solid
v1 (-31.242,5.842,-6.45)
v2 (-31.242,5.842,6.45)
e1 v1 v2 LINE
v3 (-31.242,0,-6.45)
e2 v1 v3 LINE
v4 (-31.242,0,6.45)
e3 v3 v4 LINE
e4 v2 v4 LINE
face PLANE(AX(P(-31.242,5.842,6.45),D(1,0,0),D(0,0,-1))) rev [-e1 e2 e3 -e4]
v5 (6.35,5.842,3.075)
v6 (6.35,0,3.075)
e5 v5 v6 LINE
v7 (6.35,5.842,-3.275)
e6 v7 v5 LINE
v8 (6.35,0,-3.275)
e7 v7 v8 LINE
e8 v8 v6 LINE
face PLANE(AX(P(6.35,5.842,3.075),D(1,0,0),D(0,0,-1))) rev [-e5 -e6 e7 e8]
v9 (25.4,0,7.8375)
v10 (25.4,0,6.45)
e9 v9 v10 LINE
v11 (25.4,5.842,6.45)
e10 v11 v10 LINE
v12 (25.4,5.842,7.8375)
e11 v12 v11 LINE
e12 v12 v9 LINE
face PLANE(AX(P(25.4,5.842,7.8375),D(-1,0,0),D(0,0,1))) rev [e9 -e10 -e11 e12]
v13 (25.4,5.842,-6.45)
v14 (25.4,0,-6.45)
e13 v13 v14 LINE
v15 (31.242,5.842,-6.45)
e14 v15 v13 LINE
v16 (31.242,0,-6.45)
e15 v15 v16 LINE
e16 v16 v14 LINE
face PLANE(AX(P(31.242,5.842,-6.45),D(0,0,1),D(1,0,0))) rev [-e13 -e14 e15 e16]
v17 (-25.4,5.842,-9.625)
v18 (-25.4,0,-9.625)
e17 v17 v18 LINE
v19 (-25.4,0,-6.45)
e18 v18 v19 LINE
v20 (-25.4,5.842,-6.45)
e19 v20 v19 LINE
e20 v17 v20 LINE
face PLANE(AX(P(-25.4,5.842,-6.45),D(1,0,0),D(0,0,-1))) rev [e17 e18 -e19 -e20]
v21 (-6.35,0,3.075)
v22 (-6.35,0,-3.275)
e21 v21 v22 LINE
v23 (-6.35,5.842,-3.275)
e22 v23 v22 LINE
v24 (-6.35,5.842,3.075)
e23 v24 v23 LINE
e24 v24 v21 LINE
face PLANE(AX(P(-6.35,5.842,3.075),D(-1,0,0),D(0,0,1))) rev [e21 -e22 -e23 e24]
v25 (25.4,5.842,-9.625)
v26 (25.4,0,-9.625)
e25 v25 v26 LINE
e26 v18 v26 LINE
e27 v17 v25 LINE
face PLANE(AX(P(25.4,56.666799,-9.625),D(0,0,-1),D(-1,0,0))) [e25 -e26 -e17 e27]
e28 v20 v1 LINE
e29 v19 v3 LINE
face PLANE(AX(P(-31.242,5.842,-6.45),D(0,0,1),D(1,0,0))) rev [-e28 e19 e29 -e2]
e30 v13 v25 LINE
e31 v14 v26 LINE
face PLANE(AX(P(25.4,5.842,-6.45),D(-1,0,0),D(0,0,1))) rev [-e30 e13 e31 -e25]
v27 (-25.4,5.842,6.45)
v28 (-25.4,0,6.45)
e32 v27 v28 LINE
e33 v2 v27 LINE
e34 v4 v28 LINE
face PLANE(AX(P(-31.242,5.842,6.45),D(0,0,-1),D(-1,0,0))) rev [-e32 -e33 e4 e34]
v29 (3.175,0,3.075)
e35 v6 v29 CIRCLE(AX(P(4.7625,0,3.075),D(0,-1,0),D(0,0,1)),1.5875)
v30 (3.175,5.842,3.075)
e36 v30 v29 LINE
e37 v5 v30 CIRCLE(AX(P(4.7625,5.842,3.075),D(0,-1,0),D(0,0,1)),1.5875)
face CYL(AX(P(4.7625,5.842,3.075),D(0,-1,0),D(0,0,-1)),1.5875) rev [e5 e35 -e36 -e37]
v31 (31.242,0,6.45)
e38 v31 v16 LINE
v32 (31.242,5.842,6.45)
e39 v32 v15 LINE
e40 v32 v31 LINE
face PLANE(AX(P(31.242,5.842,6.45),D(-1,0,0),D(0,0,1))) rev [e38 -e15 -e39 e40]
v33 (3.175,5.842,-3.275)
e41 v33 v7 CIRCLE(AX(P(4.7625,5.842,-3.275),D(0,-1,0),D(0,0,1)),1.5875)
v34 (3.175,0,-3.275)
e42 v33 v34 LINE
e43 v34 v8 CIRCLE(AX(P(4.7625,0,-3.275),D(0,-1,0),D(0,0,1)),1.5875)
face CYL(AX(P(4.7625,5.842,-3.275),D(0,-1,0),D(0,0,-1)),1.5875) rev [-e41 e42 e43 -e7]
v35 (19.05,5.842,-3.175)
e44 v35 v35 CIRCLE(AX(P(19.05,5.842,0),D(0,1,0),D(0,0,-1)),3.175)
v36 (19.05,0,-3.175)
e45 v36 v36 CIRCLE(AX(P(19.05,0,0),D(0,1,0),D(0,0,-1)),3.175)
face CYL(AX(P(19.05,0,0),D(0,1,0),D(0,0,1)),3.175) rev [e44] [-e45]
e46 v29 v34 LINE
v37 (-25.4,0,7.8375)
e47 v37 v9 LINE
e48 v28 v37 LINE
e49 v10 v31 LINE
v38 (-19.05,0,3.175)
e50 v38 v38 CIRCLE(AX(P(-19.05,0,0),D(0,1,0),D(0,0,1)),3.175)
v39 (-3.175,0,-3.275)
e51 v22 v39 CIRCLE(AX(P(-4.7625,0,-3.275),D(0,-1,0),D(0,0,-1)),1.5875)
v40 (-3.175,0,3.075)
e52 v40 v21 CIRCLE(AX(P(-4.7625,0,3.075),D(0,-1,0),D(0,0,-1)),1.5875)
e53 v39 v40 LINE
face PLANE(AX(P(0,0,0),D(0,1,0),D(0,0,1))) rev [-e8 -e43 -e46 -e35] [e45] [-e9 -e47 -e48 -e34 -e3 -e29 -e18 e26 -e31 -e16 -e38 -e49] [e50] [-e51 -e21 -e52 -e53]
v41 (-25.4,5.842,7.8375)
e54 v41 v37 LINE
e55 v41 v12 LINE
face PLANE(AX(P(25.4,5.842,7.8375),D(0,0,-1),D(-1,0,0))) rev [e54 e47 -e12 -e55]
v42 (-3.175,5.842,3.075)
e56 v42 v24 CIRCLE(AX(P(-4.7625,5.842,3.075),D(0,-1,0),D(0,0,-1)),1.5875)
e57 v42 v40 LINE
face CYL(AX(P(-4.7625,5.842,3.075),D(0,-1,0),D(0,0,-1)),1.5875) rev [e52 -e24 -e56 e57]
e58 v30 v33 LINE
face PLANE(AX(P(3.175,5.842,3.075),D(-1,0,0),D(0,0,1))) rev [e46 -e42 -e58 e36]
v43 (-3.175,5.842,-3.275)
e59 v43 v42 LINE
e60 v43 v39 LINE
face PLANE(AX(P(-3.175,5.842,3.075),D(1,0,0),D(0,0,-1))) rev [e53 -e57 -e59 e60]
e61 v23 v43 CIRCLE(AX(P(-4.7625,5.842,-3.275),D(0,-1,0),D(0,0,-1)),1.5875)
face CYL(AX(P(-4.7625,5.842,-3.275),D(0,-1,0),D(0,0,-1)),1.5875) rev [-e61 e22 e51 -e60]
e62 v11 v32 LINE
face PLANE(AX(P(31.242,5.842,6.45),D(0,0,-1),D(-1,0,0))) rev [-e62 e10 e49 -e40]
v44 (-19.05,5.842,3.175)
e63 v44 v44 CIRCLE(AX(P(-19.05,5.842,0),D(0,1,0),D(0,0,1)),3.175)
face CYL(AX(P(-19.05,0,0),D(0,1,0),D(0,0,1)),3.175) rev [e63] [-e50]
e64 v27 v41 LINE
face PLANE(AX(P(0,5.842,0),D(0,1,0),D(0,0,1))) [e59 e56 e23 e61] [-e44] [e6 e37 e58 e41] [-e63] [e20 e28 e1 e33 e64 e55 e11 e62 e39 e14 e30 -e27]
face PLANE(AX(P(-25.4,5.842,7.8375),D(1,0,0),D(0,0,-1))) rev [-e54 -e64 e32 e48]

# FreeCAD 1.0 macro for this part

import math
import FreeCAD as App
import Part
import Sketcher
Q = App.Units.Quantity


def add_polygon(sketch, points):
    """Adds a closed chain of lines whose ends are joined by coincident constraints."""
    first, n = sketch.GeometryCount, len(points)
    for a, b in zip(points, points[1:] + points[:1]):
        sketch.addGeometry(Part.LineSegment(App.Vector(*a, 0), App.Vector(*b, 0)), False)
    for i in range(n):
        sketch.addConstraint(Sketcher.Constraint("Coincident", first + i, 2, first + (i + 1) % n, 1))

doc = App.newDocument("Part")
body = doc.addObject("PartDesign::Body", "Body")

sketch1 = doc.addObject("Sketcher::SketchObject", "Sketch")
body.addObject(sketch1)
sketch1.AttachmentSupport = (doc.XZ_Plane, [""])
sketch1.MapMode = "FlatFace"
add_polygon(sketch1, [(25.4, 6.5), (31.2, 6.5), (31.2, -6.5), (25.4, -6.5), (25.4, -8), (-25.4, -8), (-25.4, -6.5), (-31.2, -6.5), (-31.2, 6.5), (-25.4, 6.5), (-25.4, 7.8), (25.4, 7.8)])
sketch1.addConstraint(Sketcher.Constraint("Horizontal", 0))
sketch1.addConstraint(Sketcher.Constraint("Vertical", 1))
sketch1.addConstraint(Sketcher.Constraint("Horizontal", 2))
sketch1.addConstraint(Sketcher.Constraint("Vertical", 3))
sketch1.addConstraint(Sketcher.Constraint("Horizontal", 4))
sketch1.addConstraint(Sketcher.Constraint("Vertical", 5))
sketch1.addConstraint(Sketcher.Constraint("Horizontal", 6))
sketch1.addConstraint(Sketcher.Constraint("Vertical", 7))
sketch1.addConstraint(Sketcher.Constraint("Horizontal", 8))
sketch1.addConstraint(Sketcher.Constraint("Vertical", 9))
sketch1.addConstraint(Sketcher.Constraint("Horizontal", 10))
sketch1.addConstraint(Sketcher.Constraint("Vertical", 11))
sketch1.addConstraint(Sketcher.Constraint("Symmetric", 0, 2, 6, 2, -1, 1))
sketch1.addConstraint(Sketcher.Constraint("Symmetric", 2, 2, 8, 2, -1, 1))
sketch1.addConstraint(Sketcher.Constraint("Symmetric", 2, 2, 5, 2, -2))
sketch1.addConstraint(Sketcher.Constraint("Vertical", 3, 2, 10, 2))
sketch1.addConstraint(Sketcher.Constraint("DistanceX", 4, 2, 4, 1, Q("2 in")))
sketch1.addConstraint(Sketcher.Constraint("DistanceX", 0, 1, 0, 2, Q("0.23 in")))
sketch1.addConstraint(Sketcher.Constraint("DistanceY", 3, 2, 3, 1, Q("0.0625 in")))
sketch1.addConstraint(Sketcher.Constraint("DistanceY", 5, 2, 9, 2, Q("0.5625 in")))
sketch1.addConstraint(Sketcher.Constraint("DistanceY", 1, 2, 1, 1, 12.9))
pad1 = doc.addObject("PartDesign::Pad", "Pad")
body.addObject(pad1)
pad1.Profile = sketch1
pad1.Length = Q("0.23 in")
pad1.Reversed = True

sketch2 = doc.addObject("Sketcher::SketchObject", "Sketch001")
body.addObject(sketch2)
sketch2.AttachmentSupport = (doc.XZ_Plane, [""])
sketch2.MapMode = "FlatFace"
sketch2.AttachmentOffset = App.Placement(App.Vector(0, 0, -0.23 * 25.4), App.Rotation())
sketch2.addGeometry(Part.Circle(App.Vector(-19.1, 0, 0), App.Vector(0, 0, 1), 3.2), False)
sketch2.addGeometry(Part.Circle(App.Vector(19.1, 0, 0), App.Vector(0, 0, 1), 3.2), False)
sketch2.addConstraint(Sketcher.Constraint("Equal", 0, 1))
sketch2.addConstraint(Sketcher.Constraint("Symmetric", 0, 3, 1, 3, -1, 1))
sketch2.addConstraint(Sketcher.Constraint("PointOnObject", 0, 3, -1))
sketch2.addConstraint(Sketcher.Constraint("Diameter", 0, Q("0.25 in")))
sketch2.addConstraint(Sketcher.Constraint("DistanceX", 0, 3, 1, 3, Q("1.5 in")))
pocket1 = doc.addObject("PartDesign::Pocket", "Pocket")
body.addObject(pocket1)
pocket1.Profile = sketch2
pocket1.Type = "ThroughAll"
pocket1.Reversed = True

sketch3 = doc.addObject("Sketcher::SketchObject", "Sketch002")
body.addObject(sketch3)
sketch3.AttachmentSupport = (doc.XZ_Plane, [""])
sketch3.MapMode = "FlatFace"
sketch3.addGeometry(Part.LineSegment(App.Vector(-3.2, -3.3, 0), App.Vector(-3.2, 3.1, 0)), False)
sketch3.addGeometry(Part.ArcOfCircle(Part.Circle(App.Vector(-4.8, 3.1, 0), App.Vector(0, 0, 1), 1.6), math.radians(0), math.radians(180)), False)
sketch3.addGeometry(Part.LineSegment(App.Vector(-6.3, 3.1, 0), App.Vector(-6.3, -3.3, 0)), False)
sketch3.addGeometry(Part.ArcOfCircle(Part.Circle(App.Vector(-4.8, -3.3, 0), App.Vector(0, 0, 1), 1.6), math.radians(180), math.radians(360)), False)
sketch3.addGeometry(Part.LineSegment(App.Vector(3.2, 3.1, 0), App.Vector(3.2, -3.3, 0)), False)
sketch3.addGeometry(Part.ArcOfCircle(Part.Circle(App.Vector(4.8, -3.3, 0), App.Vector(0, 0, 1), 1.6), math.radians(180), math.radians(360)), False)
sketch3.addGeometry(Part.LineSegment(App.Vector(6.3, -3.3, 0), App.Vector(6.3, 3.1, 0)), False)
sketch3.addGeometry(Part.ArcOfCircle(Part.Circle(App.Vector(4.8, 3.1, 0), App.Vector(0, 0, 1), 1.6), math.radians(0), math.radians(180)), False)
sketch3.addConstraint(Sketcher.Constraint("Tangent", 0, 2, 1, 1))
sketch3.addConstraint(Sketcher.Constraint("Tangent", 1, 2, 2, 1))
sketch3.addConstraint(Sketcher.Constraint("Tangent", 2, 2, 3, 1))
sketch3.addConstraint(Sketcher.Constraint("Tangent", 3, 2, 0, 1))
sketch3.addConstraint(Sketcher.Constraint("Tangent", 4, 2, 5, 1))
sketch3.addConstraint(Sketcher.Constraint("Tangent", 5, 2, 6, 1))
sketch3.addConstraint(Sketcher.Constraint("Tangent", 6, 2, 7, 1))
sketch3.addConstraint(Sketcher.Constraint("Tangent", 7, 2, 4, 1))
sketch3.addConstraint(Sketcher.Constraint("Vertical", 0))
sketch3.addConstraint(Sketcher.Constraint("Vertical", 2))
sketch3.addConstraint(Sketcher.Constraint("Vertical", 4))
sketch3.addConstraint(Sketcher.Constraint("Vertical", 6))
sketch3.addConstraint(Sketcher.Constraint("Equal", 3, 5))
sketch3.addConstraint(Sketcher.Constraint("Symmetric", 3, 3, 5, 3, -2))
sketch3.addConstraint(Sketcher.Constraint("Horizontal", 1, 3, 7, 3))
sketch3.addConstraint(Sketcher.Constraint("Radius", 1, Q("0.0625 in")))
sketch3.addConstraint(Sketcher.Constraint("DistanceY", 0, 1, 0, 2, Q("0.25 in")))
sketch3.addConstraint(Sketcher.Constraint("DistanceX", 1, 2, -1, 1, Q("0.25 in")))
sketch3.addConstraint(Sketcher.Constraint("DistanceY", -1, 1, 1, 3, 3.075))
pocket2 = doc.addObject("PartDesign::Pocket", "Pocket001")
body.addObject(pocket2)
pocket2.Profile = sketch3
pocket2.Type = "ThroughAll"

sketch4 = doc.addObject("Sketcher::SketchObject", "Sketch003")
body.addObject(sketch4)
sketch4.AttachmentSupport = (doc.XZ_Plane, [""])
sketch4.MapMode = "FlatFace"
add_polygon(sketch4, [(25.4, -9.6), (25.4, -8), (-25.4, -8), (-25.4, -9.6)])
sketch4.addConstraint(Sketcher.Constraint("Vertical", 0))
sketch4.addConstraint(Sketcher.Constraint("Horizontal", 1))
sketch4.addConstraint(Sketcher.Constraint("Vertical", 2))
sketch4.addConstraint(Sketcher.Constraint("Horizontal", 3))
sketch4.addConstraint(Sketcher.Constraint("DistanceX", 1, 2, 1, 1, Q("2 in")))
sketch4.addConstraint(Sketcher.Constraint("DistanceX", -1, 1, 0, 2, Q("1 in")))
sketch4.addConstraint(Sketcher.Constraint("DistanceY", 0, 1, 0, 2, Q("0.0625 in")))
sketch4.addConstraint(Sketcher.Constraint("DistanceY", 0, 2, -1, 1, 8.0375))
pad2 = doc.addObject("PartDesign::Pad", "Pad001")
body.addObject(pad2)
pad2.Profile = sketch4
pad2.Length = Q("0.23 in")
pad2.Reversed = True

doc.recompute()
